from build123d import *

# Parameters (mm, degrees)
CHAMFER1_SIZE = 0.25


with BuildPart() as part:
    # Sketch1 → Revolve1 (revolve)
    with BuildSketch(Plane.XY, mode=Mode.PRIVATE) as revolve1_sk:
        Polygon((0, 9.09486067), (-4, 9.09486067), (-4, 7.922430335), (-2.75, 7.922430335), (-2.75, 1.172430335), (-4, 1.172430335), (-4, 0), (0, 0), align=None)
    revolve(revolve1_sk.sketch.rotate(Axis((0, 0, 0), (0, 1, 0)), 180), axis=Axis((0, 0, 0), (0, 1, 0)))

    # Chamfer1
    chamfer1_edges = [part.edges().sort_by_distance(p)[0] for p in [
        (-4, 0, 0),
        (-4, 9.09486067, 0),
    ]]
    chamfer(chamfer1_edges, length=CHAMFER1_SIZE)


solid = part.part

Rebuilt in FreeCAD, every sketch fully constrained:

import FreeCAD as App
import Part
import Sketcher


def edges_at(feature, points):
    """Names of the edges that pass closest to the given points."""
    edges = feature.Shape.Edges
    near = lambda p: min(range(len(edges)), key=lambda i: edges[i].distToShape(Part.Vertex(*p))[0])
    return sorted({f"Edge{near(p) + 1}" for p in points})


def add_polygon(sketch, points):
    """Adds a closed chain of lines whose ends are joined by coincident constraints."""
    first, n = sketch.GeometryCount, len(points)
    for a, b in zip(points, points[1:] + points[:1]):
        sketch.addGeometry(Part.LineSegment(App.Vector(*a, 0), App.Vector(*b, 0)), False)
    for i in range(n):
        sketch.addConstraint(Sketcher.Constraint("Coincident", first + i, 2, first + (i + 1) % n, 1))

doc = App.newDocument("Part")
body = doc.addObject("PartDesign::Body", "Body")

# Sketch on XY plane
sketch1 = doc.addObject("Sketcher::SketchObject", "Sketch")
body.addObject(sketch1)
sketch1.AttachmentSupport = (doc.XY_Plane, [""])
sketch1.MapMode = "FlatFace"
add_polygon(sketch1, [(0, 9.1), (-4, 9.1), (-4, 7.9), (-2.8, 7.9), (-2.8, 1.2), (-4, 1.2), (-4, 0), (0, 0)])  # lines 0-7
sketch1.addConstraint(Sketcher.Constraint("Horizontal", 0))
sketch1.addConstraint(Sketcher.Constraint("Vertical", 1))
sketch1.addConstraint(Sketcher.Constraint("Horizontal", 2))
sketch1.addConstraint(Sketcher.Constraint("Vertical", 3))
sketch1.addConstraint(Sketcher.Constraint("Horizontal", 4))
sketch1.addConstraint(Sketcher.Constraint("Vertical", 5))
sketch1.addConstraint(Sketcher.Constraint("Horizontal", 6))
sketch1.addConstraint(Sketcher.Constraint("Vertical", 7))
sketch1.addConstraint(Sketcher.Constraint("Coincident", 6, 2, -1, 1))
sketch1.addConstraint(Sketcher.Constraint("Vertical", 1, 2, 4, 2))
sketch1.addConstraint(Sketcher.Constraint("Equal", 1, 5))
sketch1.addConstraint(Sketcher.Constraint("DistanceX", 0, 2, 0, 1, 4.0))
sketch1.addConstraint(Sketcher.Constraint("DistanceX", 2, 1, 2, 2, 1.25))
sketch1.addConstraint(Sketcher.Constraint("DistanceY", 3, 2, 3, 1, 6.75))
sketch1.addConstraint(Sketcher.Constraint("DistanceY", 1, 2, 1, 1, 1.17243))
revolution = doc.addObject("PartDesign::Revolution", "Revolution")
body.addObject(revolution)
revolution.Profile = sketch1
revolution.ReferenceAxis = (sketch1, ["V_Axis"])
revolution.Angle = 360
doc.recompute()

chamfer = doc.addObject("PartDesign::Chamfer", "Chamfer")
body.addObject(chamfer)
chamfer.Base = (revolution, edges_at(revolution, [(-4, 0, 0), (-4, 9.095, 0)]))
chamfer.Size = 0.25

doc.recompute()
